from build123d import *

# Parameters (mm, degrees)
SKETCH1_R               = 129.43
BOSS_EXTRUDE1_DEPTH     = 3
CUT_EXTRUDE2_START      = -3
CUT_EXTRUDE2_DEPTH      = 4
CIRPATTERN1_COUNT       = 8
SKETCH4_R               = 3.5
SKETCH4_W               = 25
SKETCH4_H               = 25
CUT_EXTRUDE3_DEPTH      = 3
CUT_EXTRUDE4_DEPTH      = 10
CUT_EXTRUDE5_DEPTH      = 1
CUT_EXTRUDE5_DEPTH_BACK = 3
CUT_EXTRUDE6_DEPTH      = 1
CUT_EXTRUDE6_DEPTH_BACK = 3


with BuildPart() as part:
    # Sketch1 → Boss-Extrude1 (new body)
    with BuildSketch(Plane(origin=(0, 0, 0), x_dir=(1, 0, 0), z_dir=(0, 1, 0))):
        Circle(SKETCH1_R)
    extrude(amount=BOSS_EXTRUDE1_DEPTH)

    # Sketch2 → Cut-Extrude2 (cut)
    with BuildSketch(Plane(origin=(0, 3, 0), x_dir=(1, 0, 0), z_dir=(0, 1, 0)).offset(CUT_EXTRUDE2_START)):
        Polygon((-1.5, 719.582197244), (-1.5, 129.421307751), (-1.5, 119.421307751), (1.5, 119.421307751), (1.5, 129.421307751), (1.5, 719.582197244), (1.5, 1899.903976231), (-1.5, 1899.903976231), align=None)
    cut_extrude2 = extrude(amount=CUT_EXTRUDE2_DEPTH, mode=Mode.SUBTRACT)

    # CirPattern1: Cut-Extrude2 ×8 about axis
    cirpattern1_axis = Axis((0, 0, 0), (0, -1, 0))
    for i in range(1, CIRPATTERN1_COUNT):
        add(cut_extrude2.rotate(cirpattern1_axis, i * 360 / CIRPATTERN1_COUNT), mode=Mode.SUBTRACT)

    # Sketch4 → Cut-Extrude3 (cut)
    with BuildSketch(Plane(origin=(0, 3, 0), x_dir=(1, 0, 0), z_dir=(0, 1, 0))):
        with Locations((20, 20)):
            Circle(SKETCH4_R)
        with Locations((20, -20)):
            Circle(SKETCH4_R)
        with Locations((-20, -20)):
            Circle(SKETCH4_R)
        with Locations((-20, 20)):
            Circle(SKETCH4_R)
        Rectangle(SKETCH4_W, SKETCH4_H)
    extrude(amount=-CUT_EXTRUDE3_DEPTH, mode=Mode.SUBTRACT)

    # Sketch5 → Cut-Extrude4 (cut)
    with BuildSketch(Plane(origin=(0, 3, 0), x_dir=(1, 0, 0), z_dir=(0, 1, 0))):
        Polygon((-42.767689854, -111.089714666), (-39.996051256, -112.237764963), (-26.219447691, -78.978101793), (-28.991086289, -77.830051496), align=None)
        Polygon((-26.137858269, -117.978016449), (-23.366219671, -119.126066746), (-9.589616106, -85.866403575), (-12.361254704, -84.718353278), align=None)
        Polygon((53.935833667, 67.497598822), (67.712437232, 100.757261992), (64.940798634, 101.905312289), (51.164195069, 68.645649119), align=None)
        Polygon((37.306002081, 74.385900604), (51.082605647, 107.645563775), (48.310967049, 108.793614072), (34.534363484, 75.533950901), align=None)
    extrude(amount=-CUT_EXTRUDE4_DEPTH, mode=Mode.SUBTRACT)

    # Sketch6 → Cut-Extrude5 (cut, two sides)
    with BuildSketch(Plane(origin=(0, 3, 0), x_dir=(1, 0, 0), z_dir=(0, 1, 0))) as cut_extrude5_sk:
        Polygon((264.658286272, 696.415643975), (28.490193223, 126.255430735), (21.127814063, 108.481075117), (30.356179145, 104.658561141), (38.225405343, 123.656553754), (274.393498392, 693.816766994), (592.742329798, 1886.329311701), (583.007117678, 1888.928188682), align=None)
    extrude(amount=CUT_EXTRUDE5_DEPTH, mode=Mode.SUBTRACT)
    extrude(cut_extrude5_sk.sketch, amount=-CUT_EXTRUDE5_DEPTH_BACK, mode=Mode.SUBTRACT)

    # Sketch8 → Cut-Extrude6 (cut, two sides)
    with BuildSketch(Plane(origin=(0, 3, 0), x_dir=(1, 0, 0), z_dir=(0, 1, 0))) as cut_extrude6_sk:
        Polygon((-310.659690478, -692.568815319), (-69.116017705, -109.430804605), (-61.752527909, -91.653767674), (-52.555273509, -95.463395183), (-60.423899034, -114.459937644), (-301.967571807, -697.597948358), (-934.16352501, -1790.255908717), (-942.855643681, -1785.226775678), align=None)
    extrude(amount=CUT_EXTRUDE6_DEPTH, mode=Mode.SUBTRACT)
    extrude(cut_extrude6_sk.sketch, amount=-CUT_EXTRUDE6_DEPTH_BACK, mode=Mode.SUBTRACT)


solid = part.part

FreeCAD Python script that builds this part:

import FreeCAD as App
import Part
import Sketcher
Q = App.Units.Quantity

doc = App.newDocument("Part")
params = doc.addObject("Spreadsheet::Sheet", "Params")
for row, (alias, value) in enumerate([
    ("sketch1_diameter", "258.86 mm"),
    ("pad1_length", "3 mm"),
    ("sketch2_width", "3 mm"),
    ("pocket1_length", "4 mm"),
    ("sketch3_diameter", "7 mm"),
    ("sketch3_width", "25 mm"),
    ("pocket2_length", "3 mm"),
    ("sketch4_length", "3 mm"),
    ("sketch4_length2", "36 mm"),
    ("pocket3_length", "10 mm"),
], start=1):
    params.set(f"A{row}", alias)
    params.set(f"B{row}", "=" + value)
    params.setAlias(f"B{row}", alias)

body = doc.addObject("PartDesign::Body", "Body")

# Sketch on XZ plane
sketch1 = doc.addObject("Sketcher::SketchObject", "Sketch")
body.addObject(sketch1)
sketch1.AttachmentSupport = (doc.XZ_Plane, [""])
sketch1.MapMode = "FlatFace"
sketch1.addGeometry(Part.Circle(App.Vector(0, 0, 0), App.Vector(0, 0, 1), 129), False)
sketch1.addConstraint(Sketcher.Constraint("Coincident", 0, 3, -1, 1))
sketch1.addConstraint(Sketcher.Constraint("Diameter", 0, 258.86))
sketch1.setExpression("Constraints[1]", "Params.sketch1_diameter")
pad1 = doc.addObject("PartDesign::Pad", "Pad")
body.addObject(pad1)
pad1.Profile = sketch1
pad1.setExpression("Length", "Params.pad1_length")
pad1.Reversed = True

# Sketch on XZ plane
sketch2 = doc.addObject("Sketcher::SketchObject", "Sketch001")
body.addObject(sketch2)
sketch2.AttachmentSupport = (doc.XZ_Plane, [""])
sketch2.MapMode = "FlatFace"
sketch2.addGeometry(Part.LineSegment(App.Vector(-1.5, -119.4, 0), App.Vector(1.5, -119.4, 0)), False)
sketch2.addGeometry(Part.LineSegment(App.Vector(1.5, -119.4, 0), App.Vector(1.5, -1899.9, 0)), False)
sketch2.addGeometry(Part.LineSegment(App.Vector(1.5, -1899.9, 0), App.Vector(-1.5, -1899.9, 0)), False)
sketch2.addGeometry(Part.LineSegment(App.Vector(-1.5, -1899.9, 0), App.Vector(-1.5, -119.4, 0)), False)
sketch2.addConstraint(Sketcher.Constraint("Coincident", 0, 2, 1, 1))
sketch2.addConstraint(Sketcher.Constraint("Coincident", 1, 2, 2, 1))
sketch2.addConstraint(Sketcher.Constraint("Coincident", 2, 2, 3, 1))
sketch2.addConstraint(Sketcher.Constraint("Coincident", 3, 2, 0, 1))
sketch2.addConstraint(Sketcher.Constraint("Horizontal", 0))
sketch2.addConstraint(Sketcher.Constraint("Vertical", 1))
sketch2.addConstraint(Sketcher.Constraint("Horizontal", 2))
sketch2.addConstraint(Sketcher.Constraint("Vertical", 3))
sketch2.addConstraint(Sketcher.Constraint("DistanceX", 0, 1, 0, 2, 3.0))
sketch2.addConstraint(Sketcher.Constraint("DistanceX", -1, 1, 0, 2, 1.5))
sketch2.addConstraint(Sketcher.Constraint("DistanceY", 1, 2, 1, 1, 1780.482668))
sketch2.addConstraint(Sketcher.Constraint("DistanceY", 0, 2, -1, 1, 119.421308))
sketch2.setExpression("Constraints[8]", "Params.sketch2_width")
pocket1 = doc.addObject("PartDesign::Pocket", "Pocket")
body.addObject(pocket1)
pocket1.Profile = sketch2
pocket1.setExpression("Length", "Params.pocket1_length")
doc.recompute()

polarpattern = doc.addObject("PartDesign::PolarPattern", "PolarPattern")
body.addObject(polarpattern)
polarpattern.Originals = [pocket1]
polarpattern.Axis = (doc.Y_Axis, [""])
polarpattern.Angle = 360
polarpattern.Occurrences = 8
body.Tip = polarpattern

# Sketch on XZ plane
sketch3 = doc.addObject("Sketcher::SketchObject", "Sketch002")
body.addObject(sketch3)
sketch3.AttachmentSupport = (doc.XZ_Plane, [""])
sketch3.MapMode = "FlatFace"
sketch3.AttachmentOffset = App.Placement(App.Vector(0, 0, -3), App.Rotation())
sketch3.addGeometry(Part.Circle(App.Vector(20, -20, 0), App.Vector(0, 0, 1), 3.5), False)
sketch3.addGeometry(Part.Circle(App.Vector(20, 20, 0), App.Vector(0, 0, 1), 3.5), False)
sketch3.addGeometry(Part.Circle(App.Vector(-20, 20, 0), App.Vector(0, 0, 1), 3.5), False)
sketch3.addGeometry(Part.Circle(App.Vector(-20, -20, 0), App.Vector(0, 0, 1), 3.5), False)
sketch3.addGeometry(Part.LineSegment(App.Vector(-12.5, -12.5, 0), App.Vector(-12.5, 12.5, 0)), False)
sketch3.addGeometry(Part.LineSegment(App.Vector(-12.5, 12.5, 0), App.Vector(12.5, 12.5, 0)), False)
sketch3.addGeometry(Part.LineSegment(App.Vector(12.5, 12.5, 0), App.Vector(12.5, -12.5, 0)), False)
sketch3.addGeometry(Part.LineSegment(App.Vector(12.5, -12.5, 0), App.Vector(-12.5, -12.5, 0)), False)
sketch3.addConstraint(Sketcher.Constraint("Coincident", 4, 2, 5, 1))
sketch3.addConstraint(Sketcher.Constraint("Coincident", 5, 2, 6, 1))
sketch3.addConstraint(Sketcher.Constraint("Coincident", 6, 2, 7, 1))
sketch3.addConstraint(Sketcher.Constraint("Coincident", 7, 2, 4, 1))
sketch3.addConstraint(Sketcher.Constraint("Vertical", 4))
sketch3.addConstraint(Sketcher.Constraint("Horizontal", 5))
sketch3.addConstraint(Sketcher.Constraint("Vertical", 6))
sketch3.addConstraint(Sketcher.Constraint("Horizontal", 7))
sketch3.addConstraint(Sketcher.Constraint("Equal", 0, 1))
sketch3.addConstraint(Sketcher.Constraint("Equal", 1, 2))
sketch3.addConstraint(Sketcher.Constraint("Equal", 2, 3))
sketch3.addConstraint(Sketcher.Constraint("Symmetric", 0, 3, 2, 3, -1, 1))
sketch3.addConstraint(Sketcher.Constraint("Symmetric", 1, 3, 3, 3, -1, 1))
sketch3.addConstraint(Sketcher.Constraint("Symmetric", 4, 2, 6, 2, -1, 1))
sketch3.addConstraint(Sketcher.Constraint("Symmetric", 1, 3, 2, 3, -2))
sketch3.addConstraint(Sketcher.Constraint("Equal", 7, 4))
sketch3.addConstraint(Sketcher.Constraint("Diameter", 0, 7.0))
sketch3.addConstraint(Sketcher.Constraint("DistanceX", 5, 1, 5, 2, 25.0))
sketch3.addConstraint(Sketcher.Constraint("DistanceX", -1, 1, 0, 3, 20.0))
sketch3.addConstraint(Sketcher.Constraint("DistanceY", 0, 3, -1, 1, 20.0))
sketch3.setExpression("Constraints[16]", "Params.sketch3_diameter")
sketch3.setExpression("Constraints[17]", "Params.sketch3_width")
pocket2 = doc.addObject("PartDesign::Pocket", "Pocket001")
body.addObject(pocket2)
pocket2.Profile = sketch3
pocket2.setExpression("Length", "Params.pocket2_length")
pocket2.Reversed = True

# Sketch on XZ plane
sketch4 = doc.addObject("Sketcher::SketchObject", "Sketch003")
body.addObject(sketch4)
sketch4.AttachmentSupport = (doc.XZ_Plane, [""])
sketch4.MapMode = "FlatFace"
sketch4.AttachmentOffset = App.Placement(App.Vector(0, 0, -3), App.Rotation())
sketch4.addGeometry(Part.LineSegment(App.Vector(-42.8, 111.1, 0), App.Vector(-40, 112.2, 0)), False)
sketch4.addGeometry(Part.LineSegment(App.Vector(-40, 112.2, 0), App.Vector(-26.2, 79, 0)), False)
sketch4.addGeometry(Part.LineSegment(App.Vector(-26.2, 79, 0), App.Vector(-29, 77.8, 0)), False)
sketch4.addGeometry(Part.LineSegment(App.Vector(-29, 77.8, 0), App.Vector(-42.8, 111.1, 0)), False)
sketch4.addGeometry(Part.LineSegment(App.Vector(-26.1, 118, 0), App.Vector(-23.4, 119.1, 0)), False)
sketch4.addGeometry(Part.LineSegment(App.Vector(-23.4, 119.1, 0), App.Vector(-9.6, 85.9, 0)), False)
sketch4.addGeometry(Part.LineSegment(App.Vector(-9.6, 85.9, 0), App.Vector(-12.4, 84.7, 0)), False)
sketch4.addGeometry(Part.LineSegment(App.Vector(-12.4, 84.7, 0), App.Vector(-26.1, 118, 0)), False)
sketch4.addGeometry(Part.LineSegment(App.Vector(53.9, -67.5, 0), App.Vector(67.7, -100.8, 0)), False)
sketch4.addGeometry(Part.LineSegment(App.Vector(67.7, -100.8, 0), App.Vector(64.9, -101.9, 0)), False)
sketch4.addGeometry(Part.LineSegment(App.Vector(64.9, -101.9, 0), App.Vector(51.2, -68.6, 0)), False)
sketch4.addGeometry(Part.LineSegment(App.Vector(51.2, -68.6, 0), App.Vector(53.9, -67.5, 0)), False)
sketch4.addGeometry(Part.LineSegment(App.Vector(37.3, -74.4, 0), App.Vector(51.1, -107.6, 0)), False)
sketch4.addGeometry(Part.LineSegment(App.Vector(51.1, -107.6, 0), App.Vector(48.3, -108.8, 0)), False)
sketch4.addGeometry(Part.LineSegment(App.Vector(48.3, -108.8, 0), App.Vector(34.5, -75.5, 0)), False)
sketch4.addGeometry(Part.LineSegment(App.Vector(34.5, -75.5, 0), App.Vector(37.3, -74.4, 0)), False)
sketch4.addConstraint(Sketcher.Constraint("Coincident", 0, 2, 1, 1))
sketch4.addConstraint(Sketcher.Constraint("Coincident", 1, 2, 2, 1))
sketch4.addConstraint(Sketcher.Constraint("Coincident", 2, 2, 3, 1))
sketch4.addConstraint(Sketcher.Constraint("Coincident", 3, 2, 0, 1))
sketch4.addConstraint(Sketcher.Constraint("Coincident", 4, 2, 5, 1))
sketch4.addConstraint(Sketcher.Constraint("Coincident", 5, 2, 6, 1))
sketch4.addConstraint(Sketcher.Constraint("Coincident", 6, 2, 7, 1))
sketch4.addConstraint(Sketcher.Constraint("Coincident", 7, 2, 4, 1))
sketch4.addConstraint(Sketcher.Constraint("Coincident", 8, 2, 9, 1))
sketch4.addConstraint(Sketcher.Constraint("Coincident", 9, 2, 10, 1))
sketch4.addConstraint(Sketcher.Constraint("Coincident", 10, 2, 11, 1))
sketch4.addConstraint(Sketcher.Constraint("Coincident", 11, 2, 8, 1))
sketch4.addConstraint(Sketcher.Constraint("Coincident", 12, 2, 13, 1))
sketch4.addConstraint(Sketcher.Constraint("Coincident", 13, 2, 14, 1))
sketch4.addConstraint(Sketcher.Constraint("Coincident", 14, 2, 15, 1))
sketch4.addConstraint(Sketcher.Constraint("Coincident", 15, 2, 12, 1))
sketch4.addConstraint(Sketcher.Constraint("Perpendicular", 0, 1))
sketch4.addConstraint(Sketcher.Constraint("Perpendicular", 1, 2))
sketch4.addConstraint(Sketcher.Constraint("Perpendicular", 2, 3))
sketch4.addConstraint(Sketcher.Constraint("Perpendicular", 3, 4))
sketch4.addConstraint(Sketcher.Constraint("Perpendicular", 4, 5))
sketch4.addConstraint(Sketcher.Constraint("Perpendicular", 5, 6))
sketch4.addConstraint(Sketcher.Constraint("Perpendicular", 6, 7))
sketch4.addConstraint(Sketcher.Constraint("Parallel", 7, 8))
sketch4.addConstraint(Sketcher.Constraint("Perpendicular", 8, 9))
sketch4.addConstraint(Sketcher.Constraint("Perpendicular", 9, 10))
sketch4.addConstraint(Sketcher.Constraint("Perpendicular", 10, 11))
sketch4.addConstraint(Sketcher.Constraint("Perpendicular", 11, 12))
sketch4.addConstraint(Sketcher.Constraint("Perpendicular", 12, 13))
sketch4.addConstraint(Sketcher.Constraint("Perpendicular", 13, 14))
sketch4.addConstraint(Sketcher.Constraint("Perpendicular", 14, 15))
sketch4.addConstraint(Sketcher.Constraint("Equal", 2, 4))
sketch4.addConstraint(Sketcher.Constraint("Equal", 3, 5))
sketch4.addConstraint(Sketcher.Constraint("Equal", 7, 8))
sketch4.addConstraint(Sketcher.Constraint("Equal", 6, 9))
sketch4.addConstraint(Sketcher.Constraint("Equal", 10, 12))
sketch4.addConstraint(Sketcher.Constraint("Equal", 11, 13))
sketch4.addConstraint(Sketcher.Constraint("Distance", 0, 3.0))
sketch4.addConstraint(Sketcher.Constraint("Distance", 1, 36.0))
sketch4.addConstraint(Sketcher.Constraint("Angle", 0, Q("22.5 deg")))
sketch4.addConstraint(Sketcher.Constraint("DistanceY", -1, 1, 1, 2, 78.978102))
sketch4.addConstraint(Sketcher.Constraint("DistanceX", -1, 1, 9, 2, 64.940799))
sketch4.addConstraint(Sketcher.Constraint("DistanceY", 11, 2, -1, 1, 67.497599))
sketch4.addConstraint(Sketcher.Constraint("DistanceY", 15, 2, -1, 1, 74.385901))
sketch4.addConstraint(Sketcher.Constraint("DistanceY", 0, 2, 4, 2, 6.888302))
sketch4.addConstraint(Sketcher.Constraint("DistanceX", 0, 2, -1, 1, 39.996051))
sketch4.addConstraint(Sketcher.Constraint("DistanceX", 4, 2, -1, 1, 23.36622))
sketch4.addConstraint(Sketcher.Constraint("DistanceX", 12, 2, 8, 2, 16.629832))
sketch4.setExpression("Constraints[37]", "Params.sketch4_length")
sketch4.setExpression("Constraints[38]", "Params.sketch4_length2")
pocket3 = doc.addObject("PartDesign::Pocket", "Pocket002")
body.addObject(pocket3)
pocket3.Profile = sketch4
pocket3.setExpression("Length", "Params.pocket3_length")
pocket3.Reversed = True

# Sketch on XZ plane
sketch5 = doc.addObject("Sketcher::SketchObject", "Sketch004")
body.addObject(sketch5)
sketch5.AttachmentSupport = (doc.XZ_Plane, [""])
sketch5.MapMode = "FlatFace"
sketch5.AttachmentOffset = App.Placement(App.Vector(0, 0, -3), App.Rotation())
sketch5.addGeometry(Part.LineSegment(App.Vector(264.658286, -696.415644, 0), App.Vector(28.490193, -126.255431, 0)), False)
sketch5.addGeometry(Part.LineSegment(App.Vector(28.490193, -126.255431, 0), App.Vector(21.127814, -108.481075, 0)), False)
sketch5.addGeometry(Part.LineSegment(App.Vector(21.127814, -108.481075, 0), App.Vector(30.356179, -104.658561, 0)), False)
sketch5.addGeometry(Part.LineSegment(App.Vector(30.356179, -104.658561, 0), App.Vector(38.225405, -123.656554, 0)), False)
sketch5.addGeometry(Part.LineSegment(App.Vector(38.225405, -123.656554, 0), App.Vector(274.393498, -693.816767, 0)), False)
sketch5.addGeometry(Part.LineSegment(App.Vector(274.393498, -693.816767, 0), App.Vector(592.74233, -1886.329312, 0)), False)
sketch5.addGeometry(Part.LineSegment(App.Vector(592.74233, -1886.329312, 0), App.Vector(583.007118, -1888.928189, 0)), False)
sketch5.addGeometry(Part.LineSegment(App.Vector(583.007118, -1888.928189, 0), App.Vector(264.658286, -696.415644, 0)), False)
sketch5.addConstraint(Sketcher.Constraint("Coincident", 0, 2, 1, 1))
sketch5.addConstraint(Sketcher.Constraint("Coincident", 1, 2, 2, 1))
sketch5.addConstraint(Sketcher.Constraint("Coincident", 2, 2, 3, 1))
sketch5.addConstraint(Sketcher.Constraint("Coincident", 3, 2, 4, 1))
sketch5.addConstraint(Sketcher.Constraint("Coincident", 4, 2, 5, 1))
sketch5.addConstraint(Sketcher.Constraint("Coincident", 5, 2, 6, 1))
sketch5.addConstraint(Sketcher.Constraint("Coincident", 6, 2, 7, 1))
sketch5.addConstraint(Sketcher.Constraint("Coincident", 7, 2, 0, 1))
sketch5.addConstraint(Sketcher.Constraint("Parallel", 0, 1))
sketch5.addConstraint(Sketcher.Constraint("Perpendicular", 1, 2))
sketch5.addConstraint(Sketcher.Constraint("Perpendicular", 2, 3))
sketch5.addConstraint(Sketcher.Constraint("Parallel", 3, 4))
sketch5.addConstraint(Sketcher.Constraint("Perpendicular", 5, 6))
sketch5.addConstraint(Sketcher.Constraint("Perpendicular", 6, 7))
sketch5.addConstraint(Sketcher.Constraint("Equal", 0, 4))
sketch5.addConstraint(Sketcher.Constraint("Equal", 5, 7))
sketch5.addConstraint(Sketcher.Constraint("Angle", 0, Q("112.5 deg")))
sketch5.addConstraint(Sketcher.Constraint("DistanceX", -1, 1, 4, 2, 274.393498))
sketch5.addConstraint(Sketcher.Constraint("Distance", 2, 9.98871))
sketch5.addConstraint(Sketcher.Constraint("Distance", 3, 20.563279))
sketch5.addConstraint(Sketcher.Constraint("DistanceY", 0, 2, -1, 1, 126.255431))
sketch5.addConstraint(Sketcher.Constraint("DistanceX", -1, 1, 2, 2, 30.356179))
sketch5.addConstraint(Sketcher.Constraint("DistanceY", 2, 2, -1, 1, 104.658561))
sketch5.addConstraint(Sketcher.Constraint("DistanceX", -1, 1, 5, 2, 592.74233))
pocket4 = doc.addObject("PartDesign::Pocket", "Pocket003")
body.addObject(pocket4)
pocket4.Profile = sketch5
pocket4.Type = "ThroughAll"
pocket4.Midplane = True

# Sketch on XZ plane
sketch6 = doc.addObject("Sketcher::SketchObject", "Sketch005")
body.addObject(sketch6)
sketch6.AttachmentSupport = (doc.XZ_Plane, [""])
sketch6.MapMode = "FlatFace"
sketch6.AttachmentOffset = App.Placement(App.Vector(0, 0, -3), App.Rotation())
sketch6.addGeometry(Part.LineSegment(App.Vector(-69, 109, 0), App.Vector(-311, 693, 0)), False)
sketch6.addGeometry(Part.LineSegment(App.Vector(-311, 693, 0), App.Vector(-943, 1785, 0)), False)
sketch6.addGeometry(Part.LineSegment(App.Vector(-943, 1785, 0), App.Vector(-934, 1790, 0)), False)
sketch6.addGeometry(Part.LineSegment(App.Vector(-934, 1790, 0), App.Vector(-302, 698, 0)), False)
sketch6.addGeometry(Part.LineSegment(App.Vector(-302, 698, 0), App.Vector(-60, 114, 0)), False)
sketch6.addGeometry(Part.LineSegment(App.Vector(-60, 114, 0), App.Vector(-53, 95, 0)), False)
sketch6.addGeometry(Part.LineSegment(App.Vector(-53, 95, 0), App.Vector(-62, 92, 0)), False)
sketch6.addGeometry(Part.LineSegment(App.Vector(-62, 92, 0), App.Vector(-69, 109, 0)), False)
sketch6.addConstraint(Sketcher.Constraint("Coincident", 0, 2, 1, 1))
sketch6.addConstraint(Sketcher.Constraint("Coincident", 1, 2, 2, 1))
sketch6.addConstraint(Sketcher.Constraint("Coincident", 2, 2, 3, 1))
sketch6.addConstraint(Sketcher.Constraint("Coincident", 3, 2, 4, 1))
sketch6.addConstraint(Sketcher.Constraint("Coincident", 4, 2, 5, 1))
sketch6.addConstraint(Sketcher.Constraint("Coincident", 5, 2, 6, 1))
sketch6.addConstraint(Sketcher.Constraint("Coincident", 6, 2, 7, 1))
sketch6.addConstraint(Sketcher.Constraint("Coincident", 7, 2, 0, 1))
sketch6.addConstraint(Sketcher.Constraint("Perpendicular", 1, 2))
sketch6.addConstraint(Sketcher.Constraint("Perpendicular", 2, 3))
sketch6.addConstraint(Sketcher.Constraint("Parallel", 0, 4))
sketch6.addConstraint(Sketcher.Constraint("Parallel", 4, 5))
sketch6.addConstraint(Sketcher.Constraint("Perpendicular", 5, 6))
sketch6.addConstraint(Sketcher.Constraint("Perpendicular", 6, 7))
sketch6.addConstraint(Sketcher.Constraint("Equal", 1, 3))
sketch6.addConstraint(Sketcher.Constraint("Equal", 0, 4))
sketch6.addConstraint(Sketcher.Constraint("Angle", 0, Q("112.5 deg")))
sketch6.addConstraint(Sketcher.Constraint("DistanceX", 4, 2, -1, 1, 60.423899))
sketch6.addConstraint(Sketcher.Constraint("DistanceX", 3, 2, 5, 2, 249.412298))
sketch6.addConstraint(Sketcher.Constraint("Distance", 1, 1262.368069))
sketch6.addConstraint(Sketcher.Constraint("Distance", 5, 20.561709))
sketch6.addConstraint(Sketcher.Constraint("DistanceX", 0, 2, -1, 1, 310.65969))
sketch6.addConstraint(Sketcher.Constraint("DistanceY", -1, 1, 2, 2, 1790.255909))
sketch6.addConstraint(Sketcher.Constraint("DistanceY", -1, 1, 3, 2, 697.597948))
pocket5 = doc.addObject("PartDesign::Pocket", "Pocket004")
body.addObject(pocket5)
pocket5.Profile = sketch6
pocket5.Type = "ThroughAll"
pocket5.Midplane = True

doc.recompute()
